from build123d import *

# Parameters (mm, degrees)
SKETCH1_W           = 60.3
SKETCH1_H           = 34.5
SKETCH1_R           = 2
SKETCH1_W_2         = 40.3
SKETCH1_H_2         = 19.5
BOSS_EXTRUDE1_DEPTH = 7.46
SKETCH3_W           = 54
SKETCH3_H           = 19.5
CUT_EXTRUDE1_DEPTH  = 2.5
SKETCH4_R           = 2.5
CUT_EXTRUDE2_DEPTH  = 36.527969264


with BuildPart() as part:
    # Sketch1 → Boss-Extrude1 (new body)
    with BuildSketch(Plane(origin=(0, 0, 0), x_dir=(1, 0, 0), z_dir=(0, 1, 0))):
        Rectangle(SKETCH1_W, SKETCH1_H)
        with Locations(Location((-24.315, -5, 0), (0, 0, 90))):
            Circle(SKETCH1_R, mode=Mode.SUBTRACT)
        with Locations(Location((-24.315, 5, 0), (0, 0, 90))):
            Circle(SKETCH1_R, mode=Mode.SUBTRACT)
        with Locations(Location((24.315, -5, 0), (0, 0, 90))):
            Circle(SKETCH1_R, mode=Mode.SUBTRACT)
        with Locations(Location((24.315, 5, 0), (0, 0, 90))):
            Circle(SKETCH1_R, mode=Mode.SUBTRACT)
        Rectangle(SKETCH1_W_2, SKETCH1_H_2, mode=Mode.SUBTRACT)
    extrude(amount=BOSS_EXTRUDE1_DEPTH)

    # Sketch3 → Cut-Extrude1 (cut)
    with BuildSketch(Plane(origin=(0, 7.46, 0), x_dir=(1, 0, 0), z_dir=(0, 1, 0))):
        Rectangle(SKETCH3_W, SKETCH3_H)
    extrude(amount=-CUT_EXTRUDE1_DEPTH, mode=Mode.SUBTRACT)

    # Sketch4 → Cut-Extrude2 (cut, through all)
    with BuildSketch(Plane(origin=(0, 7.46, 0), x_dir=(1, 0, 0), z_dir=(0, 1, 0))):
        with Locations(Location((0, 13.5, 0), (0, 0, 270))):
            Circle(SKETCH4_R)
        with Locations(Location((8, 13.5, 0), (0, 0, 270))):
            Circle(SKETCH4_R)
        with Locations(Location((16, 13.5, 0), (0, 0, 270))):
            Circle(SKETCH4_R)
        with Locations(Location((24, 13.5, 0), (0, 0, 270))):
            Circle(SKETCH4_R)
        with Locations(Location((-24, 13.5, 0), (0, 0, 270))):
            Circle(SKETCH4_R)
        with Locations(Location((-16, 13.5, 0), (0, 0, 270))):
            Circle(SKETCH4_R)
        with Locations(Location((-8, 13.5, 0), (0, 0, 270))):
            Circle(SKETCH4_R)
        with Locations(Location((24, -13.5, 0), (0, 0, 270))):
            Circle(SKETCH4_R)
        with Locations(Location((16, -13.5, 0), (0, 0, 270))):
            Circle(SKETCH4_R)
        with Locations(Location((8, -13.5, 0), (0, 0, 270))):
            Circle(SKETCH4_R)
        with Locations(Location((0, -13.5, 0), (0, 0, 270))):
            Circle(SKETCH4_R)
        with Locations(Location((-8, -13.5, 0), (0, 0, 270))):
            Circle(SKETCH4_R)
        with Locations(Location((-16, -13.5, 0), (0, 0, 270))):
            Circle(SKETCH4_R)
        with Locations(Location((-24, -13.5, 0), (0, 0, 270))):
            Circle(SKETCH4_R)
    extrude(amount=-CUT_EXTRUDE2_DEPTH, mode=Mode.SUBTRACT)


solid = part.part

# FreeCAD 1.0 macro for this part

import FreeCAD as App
import Part
import Sketcher
from FreeCAD import Vector


def add_polygon(sketch, points):
    """Adds a closed chain of lines whose ends are joined by coincident constraints."""
    first, n = sketch.GeometryCount, len(points)
    for a, b in zip(points, points[1:] + points[:1]):
        sketch.addGeometry(Part.LineSegment(App.Vector(*a, 0), App.Vector(*b, 0)), False)
    for i in range(n):
        sketch.addConstraint(Sketcher.Constraint("Coincident", first + i, 2, first + (i + 1) % n, 1))

doc = App.newDocument("Part")
params = doc.addObject("Spreadsheet::Sheet", "Params")
for row, (alias, value) in enumerate([
    ("sketch1_diameter", "4 mm"),
    ("sketch1_width", "60.3 mm"),
    ("sketch1_width2", "40.3 mm"),
    ("sketch1_height", "34.5 mm"),
    ("sketch1_height2", "19.5 mm"),
    ("pad1_length", "7.46 mm"),
    ("sketch2_width", "54 mm"),
    ("sketch2_height", "19.5 mm"),
    ("pocket1_length", "2.5 mm"),
    ("sketch3_diameter", "5 mm"),
], start=1):
    params.set(f"A{row}", alias)
    params.set(f"B{row}", "=" + value)
    params.setAlias(f"B{row}", alias)

body = doc.addObject("PartDesign::Body", "Body")

sketch1 = body.newObject("Sketcher::SketchObject", "Sketch")
sketch1.AttachmentSupport = (doc.getObject("XZ_Plane"), [""])
sketch1.MapMode = "FlatFace"
add_polygon(sketch1, [(-30.1, -17.2), (-30.1, 17.2), (30.1, 17.2), (30.1, -17.2)])
sketch1.addGeometry(Part.Circle(Vector(-24.3, 5, 0), Vector(0, 0, 1), 2), False)
sketch1.addGeometry(Part.Circle(Vector(24.3, 5, 0), Vector(0, 0, 1), 2), False)
sketch1.addGeometry(Part.Circle(Vector(-24.3, -5, 0), Vector(0, 0, 1), 2), False)
add_polygon(sketch1, [(20.1, 9.8), (-20.1, 9.8), (-20.1, -9.8), (20.1, -9.8)])
sketch1.addGeometry(Part.Circle(Vector(24.3, -5, 0), Vector(0, 0, 1), 2), False)
sketch1.addConstraint(Sketcher.Constraint("Vertical", 0))
sketch1.addConstraint(Sketcher.Constraint("Horizontal", 1))
sketch1.addConstraint(Sketcher.Constraint("Vertical", 2))
sketch1.addConstraint(Sketcher.Constraint("Horizontal", 3))
sketch1.addConstraint(Sketcher.Constraint("Horizontal", 7))
sketch1.addConstraint(Sketcher.Constraint("Vertical", 8))
sketch1.addConstraint(Sketcher.Constraint("Horizontal", 9))
sketch1.addConstraint(Sketcher.Constraint("Vertical", 10))
sketch1.addConstraint(Sketcher.Constraint("Equal", 4, 5))
sketch1.addConstraint(Sketcher.Constraint("Equal", 5, 6))
sketch1.addConstraint(Sketcher.Constraint("Equal", 6, 11))
sketch1.addConstraint(Sketcher.Constraint("Symmetric", 5, 3, 6, 3, -1, 1))
sketch1.addConstraint(Sketcher.Constraint("Symmetric", 4, 3, 11, 3, -1, 1))
sketch1.addConstraint(Sketcher.Constraint("Symmetric", 0, 2, 2, 2, -1, 1))
sketch1.addConstraint(Sketcher.Constraint("Symmetric", 7, 2, 9, 2, -1, 1))
sketch1.addConstraint(Sketcher.Constraint("Symmetric", 4, 3, 5, 3, -2))
sketch1.addConstraint(Sketcher.Constraint("Diameter", 4, 4.0))
sketch1.addConstraint(Sketcher.Constraint("DistanceX", 1, 1, 1, 2, 60.3))
sketch1.addConstraint(Sketcher.Constraint("DistanceX", 7, 2, 7, 1, 40.3))
sketch1.addConstraint(Sketcher.Constraint("DistanceY", 0, 1, 0, 2, 34.5))
sketch1.addConstraint(Sketcher.Constraint("DistanceY", 8, 2, 8, 1, 19.5))
sketch1.addConstraint(Sketcher.Constraint("DistanceY", -1, 1, 4, 3, 5.0))
sketch1.addConstraint(Sketcher.Constraint("DistanceX", 4, 3, 5, 3, 48.63))
sketch1.setExpression("Constraints[24]", "Params.sketch1_diameter")
sketch1.setExpression("Constraints[25]", "Params.sketch1_width")
sketch1.setExpression("Constraints[26]", "Params.sketch1_width2")
sketch1.setExpression("Constraints[27]", "Params.sketch1_height")
sketch1.setExpression("Constraints[28]", "Params.sketch1_height2")
pad1 = body.newObject("PartDesign::Pad", "Pad")
pad1.Profile = sketch1
pad1.setExpression("Length", "Params.pad1_length")
pad1.Reversed = True

sketch2 = body.newObject("Sketcher::SketchObject", "Sketch001")
sketch2.AttachmentSupport = (doc.getObject("XZ_Plane"), [""])
sketch2.MapMode = "FlatFace"
sketch2.AttachmentOffset = App.Placement(Vector(0, 0, -7.46), App.Rotation())
add_polygon(sketch2, [(-27, -10), (-27, 10), (27, 10), (27, -10)])
sketch2.addConstraint(Sketcher.Constraint("Vertical", 0))
sketch2.addConstraint(Sketcher.Constraint("Horizontal", 1))
sketch2.addConstraint(Sketcher.Constraint("Vertical", 2))
sketch2.addConstraint(Sketcher.Constraint("Horizontal", 3))
sketch2.addConstraint(Sketcher.Constraint("Symmetric", 0, 2, 2, 2, -1, 1))
sketch2.addConstraint(Sketcher.Constraint("DistanceX", 1, 1, 1, 2, 54.0))
sketch2.addConstraint(Sketcher.Constraint("DistanceY", 0, 1, 0, 2, 19.5))
sketch2.setExpression("Constraints[9]", "Params.sketch2_width")
sketch2.setExpression("Constraints[10]", "Params.sketch2_height")
pocket1 = body.newObject("PartDesign::Pocket", "Pocket")
pocket1.Profile = sketch2
pocket1.setExpression("Length", "Params.pocket1_length")
pocket1.Reversed = True

sketch3 = body.newObject("Sketcher::SketchObject", "Sketch002")
sketch3.AttachmentSupport = (doc.getObject("XZ_Plane"), [""])
sketch3.MapMode = "FlatFace"
sketch3.AttachmentOffset = App.Placement(Vector(0, 0, -7.46), App.Rotation())
sketch3.addGeometry(Part.Circle(Vector(0, -13.5, 0), Vector(0, 0, 1), 2.5), False)
sketch3.addGeometry(Part.Circle(Vector(8, -13.5, 0), Vector(0, 0, 1), 2.5), False)
sketch3.addGeometry(Part.Circle(Vector(16, -13.5, 0), Vector(0, 0, 1), 2.5), False)
sketch3.addGeometry(Part.Circle(Vector(24, -13.5, 0), Vector(0, 0, 1), 2.5), False)
sketch3.addGeometry(Part.Circle(Vector(-24, -13.5, 0), Vector(0, 0, 1), 2.5), False)
sketch3.addGeometry(Part.Circle(Vector(-16, -13.5, 0), Vector(0, 0, 1), 2.5), False)
sketch3.addGeometry(Part.Circle(Vector(-8, -13.5, 0), Vector(0, 0, 1), 2.5), False)
sketch3.addGeometry(Part.Circle(Vector(24, 13.5, 0), Vector(0, 0, 1), 2.5), False)
sketch3.addGeometry(Part.Circle(Vector(16, 13.5, 0), Vector(0, 0, 1), 2.5), False)
sketch3.addGeometry(Part.Circle(Vector(8, 13.5, 0), Vector(0, 0, 1), 2.5), False)
sketch3.addGeometry(Part.Circle(Vector(0, 13.5, 0), Vector(0, 0, 1), 2.5), False)
sketch3.addGeometry(Part.Circle(Vector(-8, 13.5, 0), Vector(0, 0, 1), 2.5), False)
sketch3.addGeometry(Part.Circle(Vector(-16, 13.5, 0), Vector(0, 0, 1), 2.5), False)
sketch3.addGeometry(Part.Circle(Vector(-24, 13.5, 0), Vector(0, 0, 1), 2.5), False)
sketch3.addConstraint(Sketcher.Constraint("Equal", 0, 1))
sketch3.addConstraint(Sketcher.Constraint("Equal", 1, 2))
sketch3.addConstraint(Sketcher.Constraint("Equal", 2, 3))
sketch3.addConstraint(Sketcher.Constraint("Equal", 3, 4))
sketch3.addConstraint(Sketcher.Constraint("Equal", 4, 5))
sketch3.addConstraint(Sketcher.Constraint("Equal", 5, 6))
sketch3.addConstraint(Sketcher.Constraint("Equal", 6, 7))
sketch3.addConstraint(Sketcher.Constraint("Equal", 7, 8))
sketch3.addConstraint(Sketcher.Constraint("Equal", 8, 9))
sketch3.addConstraint(Sketcher.Constraint("Equal", 9, 10))
sketch3.addConstraint(Sketcher.Constraint("Equal", 10, 11))
sketch3.addConstraint(Sketcher.Constraint("Equal", 11, 12))
sketch3.addConstraint(Sketcher.Constraint("Equal", 12, 13))
sketch3.addConstraint(Sketcher.Constraint("Symmetric", 4, 3, 7, 3, -1, 1))
sketch3.addConstraint(Sketcher.Constraint("Symmetric", 5, 3, 8, 3, -1, 1))
sketch3.addConstraint(Sketcher.Constraint("Symmetric", 6, 3, 9, 3, -1, 1))
sketch3.addConstraint(Sketcher.Constraint("Symmetric", 0, 3, 10, 3, -1, 1))
sketch3.addConstraint(Sketcher.Constraint("Symmetric", 1, 3, 11, 3, -1, 1))
sketch3.addConstraint(Sketcher.Constraint("Symmetric", 2, 3, 12, 3, -1, 1))
sketch3.addConstraint(Sketcher.Constraint("Symmetric", 3, 3, 13, 3, -1, 1))
sketch3.addConstraint(Sketcher.Constraint("Symmetric", 3, 3, 4, 3, -2))
sketch3.addConstraint(Sketcher.Constraint("Symmetric", 2, 3, 5, 3, -2))
sketch3.addConstraint(Sketcher.Constraint("Symmetric", 1, 3, 6, 3, -2))
sketch3.addConstraint(Sketcher.Constraint("PointOnObject", 0, 3, -2))
sketch3.addConstraint(Sketcher.Constraint("Horizontal", 0, 3, 1, 3))
sketch3.addConstraint(Sketcher.Constraint("Horizontal", 1, 3, 2, 3))
sketch3.addConstraint(Sketcher.Constraint("Horizontal", 2, 3, 3, 3))
sketch3.addConstraint(Sketcher.Constraint("Diameter", 0, 5.0))
sketch3.addConstraint(Sketcher.Constraint("DistanceX", -1, 1, 1, 3, 8.0))
sketch3.addConstraint(Sketcher.Constraint("DistanceX", -1, 1, 2, 3, 16.0))
sketch3.addConstraint(Sketcher.Constraint("DistanceX", -1, 1, 3, 3, 24.0))
sketch3.addConstraint(Sketcher.Constraint("DistanceY", 3, 3, 7, 3, 27.0))
sketch3.setExpression("Constraints[27]", "Params.sketch3_diameter")
pocket2 = body.newObject("PartDesign::Pocket", "Pocket001")
pocket2.Profile = sketch3
pocket2.Type = "ThroughAll"
pocket2.Reversed = True

doc.recompute()
